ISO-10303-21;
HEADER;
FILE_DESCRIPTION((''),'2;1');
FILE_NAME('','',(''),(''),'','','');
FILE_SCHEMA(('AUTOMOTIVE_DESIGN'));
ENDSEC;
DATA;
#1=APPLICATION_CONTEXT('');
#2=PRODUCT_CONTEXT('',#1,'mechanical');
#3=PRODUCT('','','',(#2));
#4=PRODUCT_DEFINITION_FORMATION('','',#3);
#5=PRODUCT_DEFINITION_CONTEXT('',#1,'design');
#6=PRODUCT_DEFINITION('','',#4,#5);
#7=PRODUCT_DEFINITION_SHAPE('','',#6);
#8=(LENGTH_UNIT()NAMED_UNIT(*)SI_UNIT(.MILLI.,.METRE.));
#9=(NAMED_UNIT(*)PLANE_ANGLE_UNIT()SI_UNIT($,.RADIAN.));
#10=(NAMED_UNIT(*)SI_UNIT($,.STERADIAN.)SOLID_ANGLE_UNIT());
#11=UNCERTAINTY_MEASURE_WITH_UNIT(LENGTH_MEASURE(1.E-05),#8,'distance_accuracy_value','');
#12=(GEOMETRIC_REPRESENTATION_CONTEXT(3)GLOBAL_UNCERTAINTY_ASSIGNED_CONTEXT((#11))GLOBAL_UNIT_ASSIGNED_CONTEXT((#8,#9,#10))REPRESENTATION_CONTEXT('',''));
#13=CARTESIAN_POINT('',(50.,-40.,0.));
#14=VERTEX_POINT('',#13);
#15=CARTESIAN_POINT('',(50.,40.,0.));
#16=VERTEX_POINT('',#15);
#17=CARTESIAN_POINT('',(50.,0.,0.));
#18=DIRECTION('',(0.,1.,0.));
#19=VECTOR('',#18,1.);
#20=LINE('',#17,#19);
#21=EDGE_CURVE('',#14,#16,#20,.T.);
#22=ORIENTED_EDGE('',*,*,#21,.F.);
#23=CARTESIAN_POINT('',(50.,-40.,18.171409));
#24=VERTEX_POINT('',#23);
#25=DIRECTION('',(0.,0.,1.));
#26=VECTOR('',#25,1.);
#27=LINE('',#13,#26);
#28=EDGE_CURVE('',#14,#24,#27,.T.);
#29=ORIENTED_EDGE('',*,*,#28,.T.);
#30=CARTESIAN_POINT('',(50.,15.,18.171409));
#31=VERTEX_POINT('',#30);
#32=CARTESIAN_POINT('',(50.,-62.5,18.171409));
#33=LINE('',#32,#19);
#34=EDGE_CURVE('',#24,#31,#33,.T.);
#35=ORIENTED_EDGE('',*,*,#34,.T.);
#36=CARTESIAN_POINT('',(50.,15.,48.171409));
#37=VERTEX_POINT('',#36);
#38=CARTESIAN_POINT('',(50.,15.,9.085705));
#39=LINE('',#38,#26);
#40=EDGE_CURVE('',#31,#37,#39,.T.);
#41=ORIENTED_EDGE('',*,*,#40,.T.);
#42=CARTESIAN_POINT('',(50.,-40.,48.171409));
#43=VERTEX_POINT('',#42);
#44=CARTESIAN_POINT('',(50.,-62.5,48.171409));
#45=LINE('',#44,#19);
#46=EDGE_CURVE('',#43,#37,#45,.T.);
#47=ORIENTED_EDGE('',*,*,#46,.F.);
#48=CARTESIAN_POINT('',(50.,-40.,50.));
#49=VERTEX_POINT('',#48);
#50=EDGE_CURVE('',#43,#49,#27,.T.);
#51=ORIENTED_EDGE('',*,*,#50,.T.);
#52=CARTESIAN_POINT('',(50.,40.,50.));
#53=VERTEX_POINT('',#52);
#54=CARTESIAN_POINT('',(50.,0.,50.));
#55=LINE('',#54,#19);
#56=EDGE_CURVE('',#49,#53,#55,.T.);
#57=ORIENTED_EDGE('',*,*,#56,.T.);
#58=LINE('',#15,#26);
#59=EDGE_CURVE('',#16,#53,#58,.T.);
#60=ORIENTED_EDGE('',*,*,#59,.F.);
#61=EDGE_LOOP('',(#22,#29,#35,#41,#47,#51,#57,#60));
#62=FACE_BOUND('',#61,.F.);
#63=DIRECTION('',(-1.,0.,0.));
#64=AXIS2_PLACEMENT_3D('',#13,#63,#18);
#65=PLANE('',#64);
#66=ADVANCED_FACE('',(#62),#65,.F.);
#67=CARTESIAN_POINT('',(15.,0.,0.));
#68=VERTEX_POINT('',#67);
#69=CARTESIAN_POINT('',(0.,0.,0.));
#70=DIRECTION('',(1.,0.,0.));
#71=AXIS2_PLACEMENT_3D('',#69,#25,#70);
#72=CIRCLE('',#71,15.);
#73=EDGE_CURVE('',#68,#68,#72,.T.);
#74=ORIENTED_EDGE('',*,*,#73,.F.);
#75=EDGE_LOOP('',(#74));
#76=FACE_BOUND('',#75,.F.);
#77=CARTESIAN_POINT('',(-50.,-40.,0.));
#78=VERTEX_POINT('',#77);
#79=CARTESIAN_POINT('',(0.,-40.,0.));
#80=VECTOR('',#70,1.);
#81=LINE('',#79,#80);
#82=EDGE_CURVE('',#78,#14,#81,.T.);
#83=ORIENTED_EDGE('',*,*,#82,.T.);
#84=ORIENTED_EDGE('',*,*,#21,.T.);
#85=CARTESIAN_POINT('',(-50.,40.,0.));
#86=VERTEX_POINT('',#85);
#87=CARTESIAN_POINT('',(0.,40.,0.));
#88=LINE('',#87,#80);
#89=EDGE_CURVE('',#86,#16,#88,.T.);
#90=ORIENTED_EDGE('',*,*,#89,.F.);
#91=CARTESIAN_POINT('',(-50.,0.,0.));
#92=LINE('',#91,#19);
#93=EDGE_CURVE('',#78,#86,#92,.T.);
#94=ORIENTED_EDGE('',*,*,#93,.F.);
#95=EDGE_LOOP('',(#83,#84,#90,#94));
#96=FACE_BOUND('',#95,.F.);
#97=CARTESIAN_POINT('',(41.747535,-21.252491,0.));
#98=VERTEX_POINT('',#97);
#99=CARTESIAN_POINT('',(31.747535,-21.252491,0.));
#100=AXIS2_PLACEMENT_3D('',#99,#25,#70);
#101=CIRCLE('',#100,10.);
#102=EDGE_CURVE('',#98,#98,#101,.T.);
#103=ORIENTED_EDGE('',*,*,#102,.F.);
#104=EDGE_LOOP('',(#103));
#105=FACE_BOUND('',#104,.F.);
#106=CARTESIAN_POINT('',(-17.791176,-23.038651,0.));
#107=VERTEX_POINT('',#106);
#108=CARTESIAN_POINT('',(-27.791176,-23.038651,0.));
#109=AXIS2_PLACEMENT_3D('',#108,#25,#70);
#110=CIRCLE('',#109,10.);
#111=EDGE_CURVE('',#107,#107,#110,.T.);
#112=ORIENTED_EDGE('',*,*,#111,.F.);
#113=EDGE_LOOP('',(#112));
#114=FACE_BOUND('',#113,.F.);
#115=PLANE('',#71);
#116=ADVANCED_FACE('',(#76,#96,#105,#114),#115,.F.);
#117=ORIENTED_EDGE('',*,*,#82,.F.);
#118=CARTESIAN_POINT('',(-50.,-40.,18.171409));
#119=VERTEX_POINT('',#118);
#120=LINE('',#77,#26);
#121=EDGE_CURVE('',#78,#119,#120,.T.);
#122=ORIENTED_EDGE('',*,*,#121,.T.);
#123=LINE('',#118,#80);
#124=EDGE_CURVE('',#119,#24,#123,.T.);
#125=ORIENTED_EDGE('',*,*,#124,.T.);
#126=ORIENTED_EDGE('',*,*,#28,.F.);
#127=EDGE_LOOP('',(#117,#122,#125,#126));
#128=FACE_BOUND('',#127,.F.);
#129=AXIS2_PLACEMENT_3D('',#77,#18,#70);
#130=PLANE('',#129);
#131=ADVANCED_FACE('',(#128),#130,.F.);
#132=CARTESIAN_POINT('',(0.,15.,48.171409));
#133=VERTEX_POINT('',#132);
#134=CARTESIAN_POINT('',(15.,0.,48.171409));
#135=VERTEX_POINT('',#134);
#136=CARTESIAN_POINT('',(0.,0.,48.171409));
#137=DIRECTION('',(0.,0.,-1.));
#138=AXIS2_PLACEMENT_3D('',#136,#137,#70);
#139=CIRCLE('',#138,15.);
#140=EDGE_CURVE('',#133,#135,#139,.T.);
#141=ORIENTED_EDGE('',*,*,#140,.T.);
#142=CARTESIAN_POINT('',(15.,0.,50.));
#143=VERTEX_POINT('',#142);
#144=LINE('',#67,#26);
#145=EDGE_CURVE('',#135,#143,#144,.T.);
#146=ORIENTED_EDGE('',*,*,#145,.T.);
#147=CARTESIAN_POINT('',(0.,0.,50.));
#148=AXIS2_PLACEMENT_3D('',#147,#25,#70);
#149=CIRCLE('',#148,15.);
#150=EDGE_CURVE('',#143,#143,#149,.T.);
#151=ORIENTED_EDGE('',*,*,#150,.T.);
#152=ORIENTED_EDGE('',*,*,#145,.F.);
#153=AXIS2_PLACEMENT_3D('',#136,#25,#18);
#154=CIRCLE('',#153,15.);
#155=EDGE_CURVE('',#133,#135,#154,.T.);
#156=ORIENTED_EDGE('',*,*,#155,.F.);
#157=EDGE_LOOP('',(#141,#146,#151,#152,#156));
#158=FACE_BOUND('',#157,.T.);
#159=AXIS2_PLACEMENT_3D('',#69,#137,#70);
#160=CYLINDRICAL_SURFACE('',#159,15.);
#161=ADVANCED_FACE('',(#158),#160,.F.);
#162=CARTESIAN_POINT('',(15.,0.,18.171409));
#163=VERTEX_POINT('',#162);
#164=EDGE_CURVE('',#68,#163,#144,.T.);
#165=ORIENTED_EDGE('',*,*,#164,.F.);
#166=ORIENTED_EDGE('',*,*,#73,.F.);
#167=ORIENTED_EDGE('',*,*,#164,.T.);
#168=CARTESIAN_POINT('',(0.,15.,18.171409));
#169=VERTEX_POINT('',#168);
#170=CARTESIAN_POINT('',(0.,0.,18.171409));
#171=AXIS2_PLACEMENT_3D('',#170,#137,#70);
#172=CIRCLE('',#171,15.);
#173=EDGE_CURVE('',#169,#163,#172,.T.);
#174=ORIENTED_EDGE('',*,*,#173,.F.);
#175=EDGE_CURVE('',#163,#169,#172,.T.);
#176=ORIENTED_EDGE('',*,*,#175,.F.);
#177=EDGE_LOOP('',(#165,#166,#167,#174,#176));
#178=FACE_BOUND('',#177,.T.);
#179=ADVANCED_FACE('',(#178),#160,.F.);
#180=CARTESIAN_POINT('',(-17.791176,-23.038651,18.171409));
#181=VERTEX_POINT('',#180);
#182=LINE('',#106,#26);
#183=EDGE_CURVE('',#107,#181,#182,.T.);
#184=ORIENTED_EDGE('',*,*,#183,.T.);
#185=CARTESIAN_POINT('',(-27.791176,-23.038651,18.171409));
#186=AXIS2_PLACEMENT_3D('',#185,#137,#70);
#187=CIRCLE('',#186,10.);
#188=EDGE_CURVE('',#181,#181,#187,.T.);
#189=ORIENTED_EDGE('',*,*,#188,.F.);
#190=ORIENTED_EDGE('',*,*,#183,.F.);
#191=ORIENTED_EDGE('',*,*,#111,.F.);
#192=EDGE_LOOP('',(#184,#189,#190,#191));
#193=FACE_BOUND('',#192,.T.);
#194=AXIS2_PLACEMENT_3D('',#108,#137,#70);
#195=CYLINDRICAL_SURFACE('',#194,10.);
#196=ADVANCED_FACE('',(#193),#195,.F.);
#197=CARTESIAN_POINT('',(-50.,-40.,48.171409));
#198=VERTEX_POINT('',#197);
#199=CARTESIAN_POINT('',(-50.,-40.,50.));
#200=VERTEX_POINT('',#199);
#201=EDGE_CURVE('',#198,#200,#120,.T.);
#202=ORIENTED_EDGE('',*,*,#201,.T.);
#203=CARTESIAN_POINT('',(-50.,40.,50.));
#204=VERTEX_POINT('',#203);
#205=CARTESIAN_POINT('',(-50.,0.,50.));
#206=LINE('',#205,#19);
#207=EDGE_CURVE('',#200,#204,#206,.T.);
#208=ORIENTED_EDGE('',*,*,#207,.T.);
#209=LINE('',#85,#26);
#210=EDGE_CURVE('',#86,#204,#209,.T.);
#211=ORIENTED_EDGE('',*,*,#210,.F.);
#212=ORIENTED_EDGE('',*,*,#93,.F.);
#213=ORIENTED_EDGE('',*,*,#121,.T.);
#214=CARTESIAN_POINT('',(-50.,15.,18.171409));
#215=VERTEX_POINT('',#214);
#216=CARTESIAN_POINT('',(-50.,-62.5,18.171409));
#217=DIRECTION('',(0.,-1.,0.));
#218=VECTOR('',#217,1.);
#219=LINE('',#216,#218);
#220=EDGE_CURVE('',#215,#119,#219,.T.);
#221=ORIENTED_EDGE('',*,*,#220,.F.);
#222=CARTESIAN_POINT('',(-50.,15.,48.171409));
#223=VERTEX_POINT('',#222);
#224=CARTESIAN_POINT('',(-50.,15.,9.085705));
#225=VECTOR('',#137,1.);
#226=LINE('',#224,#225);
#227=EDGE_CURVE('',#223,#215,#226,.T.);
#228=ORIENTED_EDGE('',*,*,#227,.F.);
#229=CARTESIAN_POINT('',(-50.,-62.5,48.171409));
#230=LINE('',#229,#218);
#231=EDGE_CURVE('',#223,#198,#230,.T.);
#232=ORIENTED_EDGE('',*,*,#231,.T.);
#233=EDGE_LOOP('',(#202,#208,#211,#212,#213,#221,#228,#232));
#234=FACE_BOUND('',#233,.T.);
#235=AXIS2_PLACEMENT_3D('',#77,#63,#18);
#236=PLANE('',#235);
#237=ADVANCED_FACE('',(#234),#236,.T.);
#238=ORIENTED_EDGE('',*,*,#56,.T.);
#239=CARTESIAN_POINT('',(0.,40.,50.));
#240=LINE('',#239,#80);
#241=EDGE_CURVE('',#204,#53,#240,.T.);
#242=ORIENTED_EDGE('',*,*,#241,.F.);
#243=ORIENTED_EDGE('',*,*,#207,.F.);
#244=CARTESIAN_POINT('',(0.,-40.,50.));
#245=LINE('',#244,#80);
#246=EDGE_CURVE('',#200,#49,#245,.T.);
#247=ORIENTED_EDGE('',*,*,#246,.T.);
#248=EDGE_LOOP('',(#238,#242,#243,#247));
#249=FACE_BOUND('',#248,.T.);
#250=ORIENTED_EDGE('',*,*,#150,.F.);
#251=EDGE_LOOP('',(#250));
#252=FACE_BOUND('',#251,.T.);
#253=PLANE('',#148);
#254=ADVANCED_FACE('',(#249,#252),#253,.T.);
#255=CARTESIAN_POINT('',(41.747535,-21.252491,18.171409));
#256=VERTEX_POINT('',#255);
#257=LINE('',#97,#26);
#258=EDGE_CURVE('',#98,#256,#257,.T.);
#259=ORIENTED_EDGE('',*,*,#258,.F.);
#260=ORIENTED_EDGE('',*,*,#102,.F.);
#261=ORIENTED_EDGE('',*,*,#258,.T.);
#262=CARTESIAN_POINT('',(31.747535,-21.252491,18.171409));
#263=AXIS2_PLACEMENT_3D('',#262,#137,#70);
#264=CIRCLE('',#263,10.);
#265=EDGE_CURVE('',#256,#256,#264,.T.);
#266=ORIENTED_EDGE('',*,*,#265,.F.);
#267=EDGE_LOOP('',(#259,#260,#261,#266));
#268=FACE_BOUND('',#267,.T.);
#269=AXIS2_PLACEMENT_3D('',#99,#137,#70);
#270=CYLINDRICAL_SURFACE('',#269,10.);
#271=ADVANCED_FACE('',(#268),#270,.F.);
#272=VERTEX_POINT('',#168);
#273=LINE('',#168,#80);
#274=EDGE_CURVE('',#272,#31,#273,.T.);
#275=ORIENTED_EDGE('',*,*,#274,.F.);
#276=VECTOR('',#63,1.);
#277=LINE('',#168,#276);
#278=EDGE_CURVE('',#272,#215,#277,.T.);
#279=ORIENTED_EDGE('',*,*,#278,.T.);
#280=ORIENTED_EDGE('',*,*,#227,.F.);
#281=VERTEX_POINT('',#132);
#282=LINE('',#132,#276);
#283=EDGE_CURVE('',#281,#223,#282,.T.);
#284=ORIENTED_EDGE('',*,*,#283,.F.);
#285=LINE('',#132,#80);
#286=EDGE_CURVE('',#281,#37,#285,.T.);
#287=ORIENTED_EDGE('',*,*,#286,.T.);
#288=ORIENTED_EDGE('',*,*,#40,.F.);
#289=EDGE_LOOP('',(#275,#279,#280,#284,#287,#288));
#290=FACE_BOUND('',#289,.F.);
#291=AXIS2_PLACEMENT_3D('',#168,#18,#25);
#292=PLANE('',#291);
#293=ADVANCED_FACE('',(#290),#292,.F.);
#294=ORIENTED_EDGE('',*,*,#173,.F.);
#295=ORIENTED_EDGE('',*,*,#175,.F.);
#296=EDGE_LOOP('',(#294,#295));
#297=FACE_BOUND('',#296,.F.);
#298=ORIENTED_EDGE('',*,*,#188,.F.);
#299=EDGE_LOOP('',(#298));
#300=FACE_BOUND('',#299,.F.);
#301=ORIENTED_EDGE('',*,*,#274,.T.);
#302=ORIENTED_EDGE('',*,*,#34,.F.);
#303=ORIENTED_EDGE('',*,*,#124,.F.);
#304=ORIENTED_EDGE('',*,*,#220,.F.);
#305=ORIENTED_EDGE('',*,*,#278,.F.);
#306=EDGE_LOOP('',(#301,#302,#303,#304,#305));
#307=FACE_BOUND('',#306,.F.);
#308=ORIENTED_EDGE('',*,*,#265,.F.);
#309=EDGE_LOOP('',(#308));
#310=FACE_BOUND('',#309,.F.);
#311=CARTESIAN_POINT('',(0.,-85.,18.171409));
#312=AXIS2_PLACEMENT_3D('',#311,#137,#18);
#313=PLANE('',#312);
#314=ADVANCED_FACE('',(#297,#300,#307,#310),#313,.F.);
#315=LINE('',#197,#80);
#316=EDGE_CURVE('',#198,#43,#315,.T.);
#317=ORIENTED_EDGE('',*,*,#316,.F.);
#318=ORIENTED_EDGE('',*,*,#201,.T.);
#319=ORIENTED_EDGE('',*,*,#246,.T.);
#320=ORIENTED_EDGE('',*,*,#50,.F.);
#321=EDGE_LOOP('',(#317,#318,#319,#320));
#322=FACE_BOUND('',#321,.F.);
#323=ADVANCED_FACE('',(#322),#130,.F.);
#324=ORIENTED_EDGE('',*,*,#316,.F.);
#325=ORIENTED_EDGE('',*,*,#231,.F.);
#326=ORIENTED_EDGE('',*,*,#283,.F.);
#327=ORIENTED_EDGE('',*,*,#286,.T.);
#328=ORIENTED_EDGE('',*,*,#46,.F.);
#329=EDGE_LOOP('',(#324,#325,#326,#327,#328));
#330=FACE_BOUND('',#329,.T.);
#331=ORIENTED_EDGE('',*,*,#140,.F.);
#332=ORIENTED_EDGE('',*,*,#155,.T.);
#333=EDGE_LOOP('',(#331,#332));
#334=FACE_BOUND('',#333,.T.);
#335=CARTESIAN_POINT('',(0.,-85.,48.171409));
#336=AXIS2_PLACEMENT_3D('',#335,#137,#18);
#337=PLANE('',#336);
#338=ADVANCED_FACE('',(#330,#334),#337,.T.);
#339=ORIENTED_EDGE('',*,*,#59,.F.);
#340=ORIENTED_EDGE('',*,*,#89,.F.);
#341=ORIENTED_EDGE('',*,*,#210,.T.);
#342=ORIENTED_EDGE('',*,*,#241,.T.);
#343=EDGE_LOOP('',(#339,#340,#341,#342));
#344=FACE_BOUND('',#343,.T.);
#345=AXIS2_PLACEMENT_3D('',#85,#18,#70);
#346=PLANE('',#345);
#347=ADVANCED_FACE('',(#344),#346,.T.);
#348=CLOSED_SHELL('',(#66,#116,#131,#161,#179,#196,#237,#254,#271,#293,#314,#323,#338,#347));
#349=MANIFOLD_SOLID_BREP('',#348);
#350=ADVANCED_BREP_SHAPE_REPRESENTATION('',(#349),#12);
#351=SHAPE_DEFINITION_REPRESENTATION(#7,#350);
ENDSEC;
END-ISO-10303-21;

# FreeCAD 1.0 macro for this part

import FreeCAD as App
import Part
import Sketcher
from FreeCAD import Vector


def add_polygon(sketch, points):
    """Adds a closed chain of lines whose ends are joined by coincident constraints."""
    first, n = sketch.GeometryCount, len(points)
    for a, b in zip(points, points[1:] + points[:1]):
        sketch.addGeometry(Part.LineSegment(App.Vector(*a, 0), App.Vector(*b, 0)), False)
    for i in range(n):
        sketch.addConstraint(Sketcher.Constraint("Coincident", first + i, 2, first + (i + 1) % n, 1))

doc = App.newDocument("Part")
params = doc.addObject("Spreadsheet::Sheet", "Params")
for row, (alias, value) in enumerate([
    ("sketch1_diameter", "30 mm"),
    ("sketch1_width", "100 mm"),
    ("sketch1_height", "80 mm"),
    ("pad1_length", "50 mm"),
    ("sketch2_width", "100 mm"),
    ("sketch2_height", "30 mm"),
    ("sketch3_diameter", "20 mm"),
    ("pocket2_length", "23.4 mm"),
], start=1):
    params.set(f"A{row}", alias)
    params.set(f"B{row}", "=" + value)
    params.setAlias(f"B{row}", alias)

body = doc.addObject("PartDesign::Body", "Body")

sketch1 = body.newObject("Sketcher::SketchObject", "Sketch")
sketch1.AttachmentSupport = (doc.getObject("XY_Plane"), [""])
sketch1.MapMode = "FlatFace"
add_polygon(sketch1, [(-50, 40), (-50, -40), (50, -40), (50, 40)])
sketch1.addGeometry(Part.Circle(Vector(0, 0, 0), Vector(0, 0, 1), 15), False)
sketch1.addConstraint([
    Sketcher.Constraint("Vertical", 0),
    Sketcher.Constraint("Horizontal", 1),
    Sketcher.Constraint("Vertical", 2),
    Sketcher.Constraint("Horizontal", 3),
    Sketcher.Constraint("Coincident", 4, 3, -1, 1),
    Sketcher.Constraint("Symmetric", 0, 2, 2, 2, -1, 1),
    Sketcher.Constraint("Diameter", 4, 30.0),
    Sketcher.Constraint("DistanceX", 1, 1, 1, 2, 100.0),
    Sketcher.Constraint("DistanceY", 0, 2, 0, 1, 80.0),
])
sketch1.setExpression("Constraints[10]", "Params.sketch1_diameter")
sketch1.setExpression("Constraints[11]", "Params.sketch1_width")
sketch1.setExpression("Constraints[12]", "Params.sketch1_height")
pad1 = body.newObject("PartDesign::Pad", "Pad")
pad1.Profile = sketch1
pad1.setExpression("Length", "Params.pad1_length")

sketch2 = body.newObject("Sketcher::SketchObject", "Sketch001")
sketch2.AttachmentSupport = (doc.getObject("YZ_Plane"), [""])
sketch2.MapMode = "FlatFace"
add_polygon(sketch2, [(-85, 48), (-85, 18), (15, 18), (15, 48)])
sketch2.addConstraint([
    Sketcher.Constraint("Vertical", 0),
    Sketcher.Constraint("Horizontal", 1),
    Sketcher.Constraint("Vertical", 2),
    Sketcher.Constraint("Horizontal", 3),
    Sketcher.Constraint("DistanceX", 1, 1, 1, 2, 100.0),
    Sketcher.Constraint("DistanceY", 0, 2, 0, 1, 30.0),
    Sketcher.Constraint("DistanceX", 0, 2, -1, 1, 85.0),
    Sketcher.Constraint("DistanceY", -1, 1, 0, 2, 18.171409),
])
sketch2.setExpression("Constraints[8]", "Params.sketch2_width")
sketch2.setExpression("Constraints[9]", "Params.sketch2_height")
pocket1 = body.newObject("PartDesign::Pocket", "Pocket")
pocket1.Profile = sketch2
pocket1.Type = "ThroughAll"
pocket1.Midplane = True

sketch3 = body.newObject("Sketcher::SketchObject", "Sketch002")
sketch3.AttachmentSupport = (doc.getObject("XY_Plane"), [""])
sketch3.MapMode = "FlatFace"
sketch3.addGeometry([
    Part.Circle(Vector(-28, -23, 0), Vector(0, 0, 1), 10),
    Part.Circle(Vector(32, -21, 0), Vector(0, 0, 1), 10),
], False)
sketch3.addConstraint([
    Sketcher.Constraint("Equal", 0, 1),
    Sketcher.Constraint("Diameter", 0, 20.0),
    Sketcher.Constraint("DistanceY", 0, 3, -1, 1, 23.038651),
    Sketcher.Constraint("DistanceY", 1, 3, -1, 1, 21.252491),
    Sketcher.Constraint("DistanceX", 0, 3, 1, 3, 59.538711),
    Sketcher.Constraint("DistanceX", 0, 3, -1, 1, 27.791176),
])
sketch3.setExpression("Constraints[1]", "Params.sketch3_diameter")
pocket2 = body.newObject("PartDesign::Pocket", "Pocket001")
pocket2.Profile = sketch3
pocket2.setExpression("Length", "Params.pocket2_length")
pocket2.Reversed = True

doc.recompute()
